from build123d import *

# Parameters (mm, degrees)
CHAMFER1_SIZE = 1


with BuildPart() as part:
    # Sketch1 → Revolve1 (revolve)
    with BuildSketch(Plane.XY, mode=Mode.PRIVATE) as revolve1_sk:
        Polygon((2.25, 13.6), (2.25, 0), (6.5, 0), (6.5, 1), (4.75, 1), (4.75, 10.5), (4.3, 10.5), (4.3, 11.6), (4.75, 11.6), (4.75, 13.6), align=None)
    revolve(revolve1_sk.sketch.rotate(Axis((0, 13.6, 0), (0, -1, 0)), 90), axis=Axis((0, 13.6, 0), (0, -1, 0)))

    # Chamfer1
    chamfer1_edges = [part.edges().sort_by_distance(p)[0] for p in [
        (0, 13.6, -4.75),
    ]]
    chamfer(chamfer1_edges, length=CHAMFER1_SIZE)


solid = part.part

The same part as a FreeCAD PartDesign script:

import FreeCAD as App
import Part
import Sketcher
from FreeCAD import Vector
Q = App.Units.Quantity


def edges_at(feature, points):
    """Names of the edges that pass closest to the given points."""
    edges = feature.Shape.Edges
    near = lambda p: min(range(len(edges)), key=lambda i: edges[i].distToShape(Part.Vertex(*p))[0])
    return sorted({f"Edge{near(p) + 1}" for p in points})

doc = App.newDocument("Part")
body = doc.addObject("PartDesign::Body", "Body")

# Sketch on XY plane
sketch1 = body.newObject("Sketcher::SketchObject", "Sketch")
sketch1.AttachmentSupport = (doc.getObject("XY_Plane"), [""])
sketch1.MapMode = "FlatFace"
sketch1.addGeometry(Part.LineSegment(Vector(2.25, 13.6, 0), Vector(2.25, 0, 0)), False)
sketch1.addGeometry(Part.LineSegment(Vector(2.25, 0, 0), Vector(6.5, 0, 0)), False)
sketch1.addGeometry(Part.LineSegment(Vector(6.5, 0, 0), Vector(6.5, 1, 0)), False)
sketch1.addGeometry(Part.LineSegment(Vector(6.5, 1, 0), Vector(4.75, 1, 0)), False)
sketch1.addGeometry(Part.LineSegment(Vector(4.75, 1, 0), Vector(4.75, 10.5, 0)), False)
sketch1.addGeometry(Part.LineSegment(Vector(4.75, 10.5, 0), Vector(4.3, 10.5, 0)), False)
sketch1.addGeometry(Part.LineSegment(Vector(4.3, 10.5, 0), Vector(4.3, 11.6, 0)), False)
sketch1.addGeometry(Part.LineSegment(Vector(4.3, 11.6, 0), Vector(4.75, 11.6, 0)), False)
sketch1.addGeometry(Part.LineSegment(Vector(4.75, 11.6, 0), Vector(4.75, 13.6, 0)), False)
sketch1.addGeometry(Part.LineSegment(Vector(4.75, 13.6, 0), Vector(2.25, 13.6, 0)), False)
sketch1.addConstraint(Sketcher.Constraint("Coincident", 0, 2, 1, 1))
sketch1.addConstraint(Sketcher.Constraint("Coincident", 1, 2, 2, 1))
sketch1.addConstraint(Sketcher.Constraint("Coincident", 2, 2, 3, 1))
sketch1.addConstraint(Sketcher.Constraint("Coincident", 3, 2, 4, 1))
sketch1.addConstraint(Sketcher.Constraint("Coincident", 4, 2, 5, 1))
sketch1.addConstraint(Sketcher.Constraint("Coincident", 5, 2, 6, 1))
sketch1.addConstraint(Sketcher.Constraint("Coincident", 6, 2, 7, 1))
sketch1.addConstraint(Sketcher.Constraint("Coincident", 7, 2, 8, 1))
sketch1.addConstraint(Sketcher.Constraint("Coincident", 8, 2, 9, 1))
sketch1.addConstraint(Sketcher.Constraint("Coincident", 9, 2, 0, 1))
sketch1.addConstraint(Sketcher.Constraint("Vertical", 0))
sketch1.addConstraint(Sketcher.Constraint("Horizontal", 1))
sketch1.addConstraint(Sketcher.Constraint("Vertical", 2))
sketch1.addConstraint(Sketcher.Constraint("Horizontal", 3))
sketch1.addConstraint(Sketcher.Constraint("Vertical", 4))
sketch1.addConstraint(Sketcher.Constraint("Horizontal", 5))
sketch1.addConstraint(Sketcher.Constraint("Vertical", 6))
sketch1.addConstraint(Sketcher.Constraint("Horizontal", 7))
sketch1.addConstraint(Sketcher.Constraint("Vertical", 8))
sketch1.addConstraint(Sketcher.Constraint("Horizontal", 9))
sketch1.addConstraint(Sketcher.Constraint("PointOnObject", 0, 2, -1))
sketch1.addConstraint(Sketcher.Constraint("Vertical", 4, 2, 7, 2))
sketch1.addConstraint(Sketcher.Constraint("DistanceY", 2, 1, 2, 2, Q("1 mm")))
sketch1.addConstraint(Sketcher.Constraint("DistanceY", 8, 1, 8, 2, Q("2 mm")))
sketch1.addConstraint(Sketcher.Constraint("DistanceX", 9, 2, 9, 1, Q("2.5 mm")))
sketch1.addConstraint(Sketcher.Constraint("DistanceY", 0, 2, 0, 1, Q("13.6 mm")))
sketch1.addConstraint(Sketcher.Constraint("DistanceY", 4, 1, 4, 2, Q("9.5 mm")))
sketch1.addConstraint(Sketcher.Constraint("DistanceX", 1, 1, 1, 2, Q("4.25 mm")))
sketch1.addConstraint(Sketcher.Constraint("DistanceX", 5, 2, 5, 1, Q("0.45 mm")))
sketch1.addConstraint(Sketcher.Constraint("DistanceX", -1, 1, 1, 2, Q("6.5 mm")))
revolution = body.newObject("PartDesign::Revolution", "Revolution")
revolution.Profile = sketch1
revolution.ReferenceAxis = (sketch1, ["V_Axis"])
revolution.Angle = 360
doc.recompute()

chamfer = body.newObject("PartDesign::Chamfer", "Chamfer")
chamfer.Base = (revolution, edges_at(revolution, [(0, 13.6, -4.75)]))
chamfer.Size = 1

doc.recompute()
